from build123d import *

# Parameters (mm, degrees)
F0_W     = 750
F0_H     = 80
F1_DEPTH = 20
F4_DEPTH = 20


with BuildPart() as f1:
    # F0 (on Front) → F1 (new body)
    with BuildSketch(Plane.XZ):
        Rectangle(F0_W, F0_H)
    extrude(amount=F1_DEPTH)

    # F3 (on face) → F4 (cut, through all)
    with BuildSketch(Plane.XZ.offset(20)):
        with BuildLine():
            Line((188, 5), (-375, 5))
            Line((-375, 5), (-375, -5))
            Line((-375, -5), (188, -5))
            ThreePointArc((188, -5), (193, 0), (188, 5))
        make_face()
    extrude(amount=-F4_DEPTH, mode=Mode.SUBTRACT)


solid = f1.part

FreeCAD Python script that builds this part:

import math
import FreeCAD as App
import Part
import Sketcher
Q = App.Units.Quantity

doc = App.newDocument("Part")
body = doc.addObject("PartDesign::Body", "Body")

# Sketch on XZ plane
sketch1 = body.newObject("Sketcher::SketchObject", "Sketch")
sketch1.AttachmentSupport = (doc.getObject("XZ_Plane"), [""])
sketch1.MapMode = "FlatFace"
sketch1.addGeometry(Part.LineSegment(App.Vector(-375, 40, 0), App.Vector(-375, -40, 0)), False)
sketch1.addGeometry(Part.LineSegment(App.Vector(-375, -40, 0), App.Vector(375, -40, 0)), False)
sketch1.addGeometry(Part.LineSegment(App.Vector(375, -40, 0), App.Vector(375, 40, 0)), False)
sketch1.addGeometry(Part.LineSegment(App.Vector(375, 40, 0), App.Vector(-375, 40, 0)), False)
sketch1.addConstraint(Sketcher.Constraint("Coincident", 0, 2, 1, 1))
sketch1.addConstraint(Sketcher.Constraint("Coincident", 1, 2, 2, 1))
sketch1.addConstraint(Sketcher.Constraint("Coincident", 2, 2, 3, 1))
sketch1.addConstraint(Sketcher.Constraint("Coincident", 3, 2, 0, 1))
sketch1.addConstraint(Sketcher.Constraint("Vertical", 0))
sketch1.addConstraint(Sketcher.Constraint("Horizontal", 1))
sketch1.addConstraint(Sketcher.Constraint("Vertical", 2))
sketch1.addConstraint(Sketcher.Constraint("Horizontal", 3))
sketch1.addConstraint(Sketcher.Constraint("Symmetric", 0, 2, 2, 2, -1, 1))
sketch1.addConstraint(Sketcher.Constraint("DistanceX", 1, 1, 1, 2, Q("750 mm")))
sketch1.addConstraint(Sketcher.Constraint("DistanceY", 0, 2, 0, 1, Q("80 mm")))
pad1 = body.newObject("PartDesign::Pad", "Pad")
pad1.Profile = sketch1
pad1.Length = 20

# Sketch on XZ plane
sketch2 = body.newObject("Sketcher::SketchObject", "Sketch001")
sketch2.AttachmentSupport = (doc.getObject("XZ_Plane"), [""])
sketch2.MapMode = "FlatFace"
sketch2.AttachmentOffset = App.Placement(App.Vector(0, 0, 20), App.Rotation())
sketch2.addGeometry(Part.LineSegment(App.Vector(188, 5, 0), App.Vector(-375, 5, 0)), False)
sketch2.addGeometry(Part.LineSegment(App.Vector(-375, 5, 0), App.Vector(-375, -5, 0)), False)
sketch2.addGeometry(Part.LineSegment(App.Vector(-375, -5, 0), App.Vector(188, -5, 0)), False)
sketch2.addGeometry(Part.ArcOfCircle(Part.Circle(App.Vector(188, 0, 0), App.Vector(0, 0, 1), 5), math.radians(-90), math.radians(90)), False)
sketch2.addConstraint(Sketcher.Constraint("Coincident", 0, 2, 1, 1))
sketch2.addConstraint(Sketcher.Constraint("Coincident", 1, 2, 2, 1))
sketch2.addConstraint(Sketcher.Constraint("Tangent", 2, 2, 3, 1))
sketch2.addConstraint(Sketcher.Constraint("Tangent", 3, 2, 0, 1))
sketch2.addConstraint(Sketcher.Constraint("Horizontal", 0))
sketch2.addConstraint(Sketcher.Constraint("Vertical", 1))
sketch2.addConstraint(Sketcher.Constraint("Horizontal", 2))
sketch2.addConstraint(Sketcher.Constraint("PointOnObject", 3, 3, -1))
sketch2.addConstraint(Sketcher.Constraint("Radius", 3, Q("5 mm")))
sketch2.addConstraint(Sketcher.Constraint("DistanceX", 0, 2, 0, 1, Q("563 mm")))
sketch2.addConstraint(Sketcher.Constraint("DistanceX", -1, 1, 3, 3, Q("188 mm")))
pocket1 = body.newObject("PartDesign::Pocket", "Pocket")
pocket1.Profile = sketch2
pocket1.Type = "ThroughAll"

doc.recompute()
